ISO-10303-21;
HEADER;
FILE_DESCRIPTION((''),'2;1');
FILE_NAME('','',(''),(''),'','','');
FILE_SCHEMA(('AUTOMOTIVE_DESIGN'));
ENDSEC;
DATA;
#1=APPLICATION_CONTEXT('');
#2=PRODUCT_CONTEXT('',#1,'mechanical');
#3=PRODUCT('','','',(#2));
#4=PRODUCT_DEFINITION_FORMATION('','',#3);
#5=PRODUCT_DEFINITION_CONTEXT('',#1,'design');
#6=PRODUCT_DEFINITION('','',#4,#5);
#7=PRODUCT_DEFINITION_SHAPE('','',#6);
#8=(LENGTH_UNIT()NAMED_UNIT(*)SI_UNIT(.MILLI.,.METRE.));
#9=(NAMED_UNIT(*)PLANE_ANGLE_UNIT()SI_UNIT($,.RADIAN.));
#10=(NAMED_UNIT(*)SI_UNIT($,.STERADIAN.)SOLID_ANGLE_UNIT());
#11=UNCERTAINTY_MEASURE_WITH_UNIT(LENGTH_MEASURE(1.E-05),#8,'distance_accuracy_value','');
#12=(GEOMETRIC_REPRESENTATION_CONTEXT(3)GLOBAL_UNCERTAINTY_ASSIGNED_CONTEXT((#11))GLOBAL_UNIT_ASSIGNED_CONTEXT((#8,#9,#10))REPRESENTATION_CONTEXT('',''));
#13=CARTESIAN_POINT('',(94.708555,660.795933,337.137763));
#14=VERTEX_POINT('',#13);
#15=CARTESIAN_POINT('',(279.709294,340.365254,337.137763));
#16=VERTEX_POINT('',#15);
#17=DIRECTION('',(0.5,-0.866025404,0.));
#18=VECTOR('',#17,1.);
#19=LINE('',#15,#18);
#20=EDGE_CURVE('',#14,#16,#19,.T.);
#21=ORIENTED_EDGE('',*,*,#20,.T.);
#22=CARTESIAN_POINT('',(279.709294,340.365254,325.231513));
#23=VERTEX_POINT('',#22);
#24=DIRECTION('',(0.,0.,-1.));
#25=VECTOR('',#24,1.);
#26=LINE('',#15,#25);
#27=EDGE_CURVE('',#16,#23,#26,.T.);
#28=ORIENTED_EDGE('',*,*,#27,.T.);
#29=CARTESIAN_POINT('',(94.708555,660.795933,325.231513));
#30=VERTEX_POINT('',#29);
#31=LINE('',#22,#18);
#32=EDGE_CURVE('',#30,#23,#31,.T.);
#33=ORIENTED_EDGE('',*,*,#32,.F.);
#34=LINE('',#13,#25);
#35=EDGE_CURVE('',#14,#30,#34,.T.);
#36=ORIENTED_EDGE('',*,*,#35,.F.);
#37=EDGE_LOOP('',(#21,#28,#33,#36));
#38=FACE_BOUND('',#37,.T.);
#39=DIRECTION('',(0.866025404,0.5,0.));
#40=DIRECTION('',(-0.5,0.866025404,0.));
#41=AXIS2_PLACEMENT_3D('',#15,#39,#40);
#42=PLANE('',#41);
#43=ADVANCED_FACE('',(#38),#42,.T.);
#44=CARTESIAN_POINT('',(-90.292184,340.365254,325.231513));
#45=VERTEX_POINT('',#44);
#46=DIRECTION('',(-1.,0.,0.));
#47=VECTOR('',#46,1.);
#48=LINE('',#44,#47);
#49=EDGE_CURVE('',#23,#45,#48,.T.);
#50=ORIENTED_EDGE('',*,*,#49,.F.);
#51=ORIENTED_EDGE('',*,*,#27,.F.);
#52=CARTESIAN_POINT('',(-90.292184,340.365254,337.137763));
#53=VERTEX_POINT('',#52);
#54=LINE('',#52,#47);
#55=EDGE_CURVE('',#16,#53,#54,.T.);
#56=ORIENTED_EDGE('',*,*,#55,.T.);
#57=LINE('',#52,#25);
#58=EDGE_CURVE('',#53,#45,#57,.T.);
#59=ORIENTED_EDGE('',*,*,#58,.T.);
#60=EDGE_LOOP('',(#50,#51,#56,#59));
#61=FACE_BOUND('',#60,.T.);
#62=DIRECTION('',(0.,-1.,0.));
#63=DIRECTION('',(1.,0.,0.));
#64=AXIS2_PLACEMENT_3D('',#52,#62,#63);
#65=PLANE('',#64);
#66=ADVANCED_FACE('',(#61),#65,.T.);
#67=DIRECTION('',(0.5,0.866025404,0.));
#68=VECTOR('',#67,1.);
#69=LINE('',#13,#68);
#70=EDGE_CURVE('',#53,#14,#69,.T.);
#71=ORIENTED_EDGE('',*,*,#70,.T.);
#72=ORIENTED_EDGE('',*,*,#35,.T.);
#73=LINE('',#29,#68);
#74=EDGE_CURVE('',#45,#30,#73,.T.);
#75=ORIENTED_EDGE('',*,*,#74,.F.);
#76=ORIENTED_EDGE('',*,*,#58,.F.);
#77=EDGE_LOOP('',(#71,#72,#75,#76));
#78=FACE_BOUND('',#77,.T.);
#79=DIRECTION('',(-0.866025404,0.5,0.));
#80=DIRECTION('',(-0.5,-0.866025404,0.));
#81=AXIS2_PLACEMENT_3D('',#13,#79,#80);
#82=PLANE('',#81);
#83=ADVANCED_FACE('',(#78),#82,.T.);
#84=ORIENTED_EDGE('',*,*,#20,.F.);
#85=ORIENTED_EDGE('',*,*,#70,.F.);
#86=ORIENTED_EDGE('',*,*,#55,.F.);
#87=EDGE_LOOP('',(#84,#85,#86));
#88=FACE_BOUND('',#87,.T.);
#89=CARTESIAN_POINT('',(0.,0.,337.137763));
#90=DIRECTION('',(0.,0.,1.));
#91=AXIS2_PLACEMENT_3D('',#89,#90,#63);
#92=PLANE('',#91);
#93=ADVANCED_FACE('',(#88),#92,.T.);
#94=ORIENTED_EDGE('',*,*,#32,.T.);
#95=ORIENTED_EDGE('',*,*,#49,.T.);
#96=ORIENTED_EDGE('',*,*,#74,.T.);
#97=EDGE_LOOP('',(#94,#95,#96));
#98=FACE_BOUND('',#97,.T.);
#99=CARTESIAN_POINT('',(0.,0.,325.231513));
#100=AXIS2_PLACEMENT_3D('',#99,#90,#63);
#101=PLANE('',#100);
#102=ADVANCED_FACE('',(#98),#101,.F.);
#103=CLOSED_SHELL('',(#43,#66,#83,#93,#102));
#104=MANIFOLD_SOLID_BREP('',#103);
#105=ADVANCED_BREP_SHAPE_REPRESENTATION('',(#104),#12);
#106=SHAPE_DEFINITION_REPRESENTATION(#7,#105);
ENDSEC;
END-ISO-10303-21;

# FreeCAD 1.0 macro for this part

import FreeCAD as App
import Part
import Sketcher

V = App.Vector
Q = App.Units.Quantity


def add_polygon(sketch, points):
    """Adds a closed chain of lines whose ends are joined by coincident constraints."""
    first, n = sketch.GeometryCount, len(points)
    for a, b in zip(points, points[1:] + points[:1]):
        sketch.addGeometry(Part.LineSegment(App.Vector(*a, 0), App.Vector(*b, 0)), False)
    for i in range(n):
        sketch.addConstraint(Sketcher.Constraint("Coincident", first + i, 2, first + (i + 1) % n, 1))

doc = App.newDocument("Part")
params = doc.addObject("Spreadsheet::Sheet", "Params")
for row, (alias, value) in enumerate([
    ("pad1_length", "0.46875 in"),
], start=1):
    params.set(f"A{row}", alias)
    params.set(f"B{row}", "=" + value)
    params.setAlias(f"B{row}", alias)

body = doc.addObject("PartDesign::Body", "Body")

sketch1 = body.newObject("Sketcher::SketchObject", "Sketch")
sketch1.AttachmentSupport = (doc.getObject("XY_Plane"), [""])
sketch1.MapMode = "FlatFace"
sketch1.AttachmentOffset = App.Placement(V(0, 0, 325.231513), App.Rotation())
add_polygon(sketch1, [(95, 661), (280, 340), (-90, 340)])
sketch1.addConstraint(Sketcher.Constraint("Horizontal", 1))
sketch1.addConstraint(Sketcher.Constraint("Equal", 0, 2))
sketch1.addConstraint(Sketcher.Constraint("Angle", 0, Q("-60 deg")))
sketch1.addConstraint(Sketcher.Constraint("DistanceX", 1, 2, 1, 1, Q("370.001477 mm")))
sketch1.addConstraint(Sketcher.Constraint("DistanceX", -1, 1, 0, 2, Q("279.709294 mm")))
sketch1.addConstraint(Sketcher.Constraint("DistanceY", -1, 1, 0, 2, Q("340.365254 mm")))
pad1 = body.newObject("PartDesign::Pad", "Pad")
pad1.Profile = sketch1
pad1.setExpression("Length", "Params.pad1_length")

doc.recompute()
